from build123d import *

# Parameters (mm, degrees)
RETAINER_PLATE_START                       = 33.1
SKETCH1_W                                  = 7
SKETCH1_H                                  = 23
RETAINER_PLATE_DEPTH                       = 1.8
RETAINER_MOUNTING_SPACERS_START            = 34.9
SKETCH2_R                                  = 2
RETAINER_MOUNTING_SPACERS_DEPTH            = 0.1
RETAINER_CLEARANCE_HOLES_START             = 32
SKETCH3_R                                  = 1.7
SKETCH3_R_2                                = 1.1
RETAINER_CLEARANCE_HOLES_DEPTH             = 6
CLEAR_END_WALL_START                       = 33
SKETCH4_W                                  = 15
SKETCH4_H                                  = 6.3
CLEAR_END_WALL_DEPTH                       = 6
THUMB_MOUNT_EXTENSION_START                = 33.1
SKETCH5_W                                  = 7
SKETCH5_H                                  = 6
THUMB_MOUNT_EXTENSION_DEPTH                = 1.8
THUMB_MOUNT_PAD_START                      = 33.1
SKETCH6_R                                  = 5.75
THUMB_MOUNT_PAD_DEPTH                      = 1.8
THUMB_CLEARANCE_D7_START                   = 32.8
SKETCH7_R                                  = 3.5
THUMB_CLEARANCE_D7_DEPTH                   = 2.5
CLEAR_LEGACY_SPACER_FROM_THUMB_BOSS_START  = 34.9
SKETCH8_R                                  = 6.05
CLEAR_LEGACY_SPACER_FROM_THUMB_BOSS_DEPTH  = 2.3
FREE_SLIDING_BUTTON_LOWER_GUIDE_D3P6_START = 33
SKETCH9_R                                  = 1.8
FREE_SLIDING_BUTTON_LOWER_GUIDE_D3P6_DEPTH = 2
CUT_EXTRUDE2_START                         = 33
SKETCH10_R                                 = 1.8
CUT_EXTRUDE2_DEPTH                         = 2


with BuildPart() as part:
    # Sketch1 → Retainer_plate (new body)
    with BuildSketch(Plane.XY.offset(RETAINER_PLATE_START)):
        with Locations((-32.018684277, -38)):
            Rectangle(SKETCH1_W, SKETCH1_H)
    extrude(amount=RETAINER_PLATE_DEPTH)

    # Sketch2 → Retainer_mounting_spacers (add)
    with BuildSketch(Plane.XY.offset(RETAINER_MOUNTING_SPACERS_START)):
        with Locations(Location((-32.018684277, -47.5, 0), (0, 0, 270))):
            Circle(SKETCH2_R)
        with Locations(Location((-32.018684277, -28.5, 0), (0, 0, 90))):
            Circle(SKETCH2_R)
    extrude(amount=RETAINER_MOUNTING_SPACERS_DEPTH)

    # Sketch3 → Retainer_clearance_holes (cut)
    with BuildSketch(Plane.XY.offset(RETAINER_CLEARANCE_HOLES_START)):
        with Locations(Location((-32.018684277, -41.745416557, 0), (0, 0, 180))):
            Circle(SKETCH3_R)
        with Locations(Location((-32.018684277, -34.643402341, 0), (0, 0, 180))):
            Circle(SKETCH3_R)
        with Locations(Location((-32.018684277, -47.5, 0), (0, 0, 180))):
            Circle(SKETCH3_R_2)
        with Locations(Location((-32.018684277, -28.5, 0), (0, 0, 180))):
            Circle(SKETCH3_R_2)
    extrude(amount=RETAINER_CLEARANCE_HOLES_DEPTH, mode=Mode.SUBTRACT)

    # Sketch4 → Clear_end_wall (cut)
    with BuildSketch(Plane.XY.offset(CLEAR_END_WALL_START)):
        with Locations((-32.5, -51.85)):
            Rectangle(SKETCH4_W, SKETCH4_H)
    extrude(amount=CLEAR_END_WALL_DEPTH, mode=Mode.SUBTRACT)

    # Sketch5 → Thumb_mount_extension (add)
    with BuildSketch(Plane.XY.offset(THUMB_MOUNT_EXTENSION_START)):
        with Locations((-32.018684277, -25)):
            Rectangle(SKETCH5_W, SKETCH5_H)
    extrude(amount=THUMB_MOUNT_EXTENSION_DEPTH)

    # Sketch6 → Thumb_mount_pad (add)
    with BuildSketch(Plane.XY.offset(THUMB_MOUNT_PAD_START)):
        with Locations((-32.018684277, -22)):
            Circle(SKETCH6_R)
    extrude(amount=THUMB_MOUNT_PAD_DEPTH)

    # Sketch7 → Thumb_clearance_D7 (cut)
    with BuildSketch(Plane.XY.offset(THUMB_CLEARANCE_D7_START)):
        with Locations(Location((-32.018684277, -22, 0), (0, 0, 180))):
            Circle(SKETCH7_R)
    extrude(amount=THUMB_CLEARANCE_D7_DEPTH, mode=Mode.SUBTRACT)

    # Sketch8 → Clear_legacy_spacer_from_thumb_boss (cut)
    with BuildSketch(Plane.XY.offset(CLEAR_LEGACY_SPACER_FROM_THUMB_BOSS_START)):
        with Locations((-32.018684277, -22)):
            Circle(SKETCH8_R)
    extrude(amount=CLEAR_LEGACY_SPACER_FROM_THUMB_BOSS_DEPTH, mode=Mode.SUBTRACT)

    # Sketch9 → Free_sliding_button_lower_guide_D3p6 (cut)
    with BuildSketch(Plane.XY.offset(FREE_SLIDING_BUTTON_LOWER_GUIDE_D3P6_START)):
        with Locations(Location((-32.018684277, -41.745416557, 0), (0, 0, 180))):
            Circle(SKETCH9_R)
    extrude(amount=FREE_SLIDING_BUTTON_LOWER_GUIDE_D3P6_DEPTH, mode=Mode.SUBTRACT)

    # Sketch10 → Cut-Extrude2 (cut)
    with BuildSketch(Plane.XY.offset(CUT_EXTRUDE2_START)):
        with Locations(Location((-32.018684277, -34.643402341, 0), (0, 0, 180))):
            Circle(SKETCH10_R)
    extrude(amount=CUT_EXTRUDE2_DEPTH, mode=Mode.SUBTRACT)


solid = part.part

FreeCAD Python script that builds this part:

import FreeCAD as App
import Part
import Sketcher

V = App.Vector

doc = App.newDocument("Part")
body = doc.addObject("PartDesign::Body", "Body")

sketch1 = doc.addObject("Sketcher::SketchObject", "Sketch")
body.addObject(sketch1)
sketch1.AttachmentSupport = (doc.XY_Plane, [""])
sketch1.MapMode = "FlatFace"
sketch1.AttachmentOffset = App.Placement(V(0, 0, 33.1), App.Rotation())
sketch1.addGeometry(Part.LineSegment(V(-36, -26, 0), V(-36, -50, 0)), False)
sketch1.addGeometry(Part.LineSegment(V(-36, -50, 0), V(-29, -50, 0)), False)
sketch1.addGeometry(Part.LineSegment(V(-29, -50, 0), V(-29, -26, 0)), False)
sketch1.addGeometry(Part.LineSegment(V(-29, -26, 0), V(-36, -26, 0)), False)
sketch1.addConstraint(Sketcher.Constraint("Coincident", 0, 2, 1, 1))
sketch1.addConstraint(Sketcher.Constraint("Coincident", 1, 2, 2, 1))
sketch1.addConstraint(Sketcher.Constraint("Coincident", 2, 2, 3, 1))
sketch1.addConstraint(Sketcher.Constraint("Coincident", 3, 2, 0, 1))
sketch1.addConstraint(Sketcher.Constraint("Vertical", 0))
sketch1.addConstraint(Sketcher.Constraint("Horizontal", 1))
sketch1.addConstraint(Sketcher.Constraint("Vertical", 2))
sketch1.addConstraint(Sketcher.Constraint("Horizontal", 3))
sketch1.addConstraint(Sketcher.Constraint("DistanceX", 1, 1, 1, 2, 7.0))
sketch1.addConstraint(Sketcher.Constraint("DistanceY", 0, 2, 0, 1, 23.0))
sketch1.addConstraint(Sketcher.Constraint("DistanceY", 0, 2, -1, 1, 49.5))
sketch1.addConstraint(Sketcher.Constraint("DistanceX", 0, 2, -1, 1, 35.518684))
pad1 = doc.addObject("PartDesign::Pad", "Pad")
body.addObject(pad1)
pad1.Profile = sketch1
pad1.Length = 1.8

sketch2 = doc.addObject("Sketcher::SketchObject", "Sketch001")
body.addObject(sketch2)
sketch2.AttachmentSupport = (doc.XY_Plane, [""])
sketch2.MapMode = "FlatFace"
sketch2.AttachmentOffset = App.Placement(V(0, 0, 34.9), App.Rotation())
sketch2.addGeometry(Part.Circle(V(-32, -47.5, 0), V(0, 0, 1), 2), False)
sketch2.addGeometry(Part.Circle(V(-32, -28.5, 0), V(0, 0, 1), 2), False)
sketch2.addConstraint(Sketcher.Constraint("Equal", 0, 1))
sketch2.addConstraint(Sketcher.Constraint("Vertical", 0, 3, 1, 3))
sketch2.addConstraint(Sketcher.Constraint("Diameter", 0, 4.0))
sketch2.addConstraint(Sketcher.Constraint("DistanceY", 0, 3, 1, 3, 19.0))
sketch2.addConstraint(Sketcher.Constraint("DistanceY", 0, 3, -1, 1, 47.5))
sketch2.addConstraint(Sketcher.Constraint("DistanceX", 0, 3, -1, 1, 32.018684))
pad2 = doc.addObject("PartDesign::Pad", "Pad001")
body.addObject(pad2)
pad2.Profile = sketch2
pad2.Length = 0.1

sketch3 = doc.addObject("Sketcher::SketchObject", "Sketch002")
body.addObject(sketch3)
sketch3.AttachmentSupport = (doc.XY_Plane, [""])
sketch3.MapMode = "FlatFace"
sketch3.AttachmentOffset = App.Placement(V(0, 0, 32), App.Rotation())
sketch3.addGeometry(Part.Circle(V(-32, -41.7, 0), V(0, 0, 1), 1.7), False)
sketch3.addGeometry(Part.Circle(V(-32, -34.6, 0), V(0, 0, 1), 1.7), False)
sketch3.addGeometry(Part.Circle(V(-32, -47.5, 0), V(0, 0, 1), 1.1), False)
sketch3.addGeometry(Part.Circle(V(-32, -28.5, 0), V(0, 0, 1), 1.1), False)
sketch3.addConstraint(Sketcher.Constraint("Equal", 0, 1))
sketch3.addConstraint(Sketcher.Constraint("Equal", 2, 3))
sketch3.addConstraint(Sketcher.Constraint("Vertical", 0, 3, 1, 3))
sketch3.addConstraint(Sketcher.Constraint("Vertical", 1, 3, 2, 3))
sketch3.addConstraint(Sketcher.Constraint("Vertical", 2, 3, 3, 3))
sketch3.addConstraint(Sketcher.Constraint("Diameter", 0, 3.4))
sketch3.addConstraint(Sketcher.Constraint("Diameter", 2, 2.2))
sketch3.addConstraint(Sketcher.Constraint("DistanceY", 2, 3, 3, 3, 19.0))
sketch3.addConstraint(Sketcher.Constraint("DistanceY", 2, 3, -1, 1, 47.5))
sketch3.addConstraint(Sketcher.Constraint("DistanceX", 0, 3, -1, 1, 32.018684))
sketch3.addConstraint(Sketcher.Constraint("DistanceY", 0, 3, -1, 1, 41.745417))
sketch3.addConstraint(Sketcher.Constraint("DistanceY", 1, 3, -1, 1, 34.643402))
pocket1 = doc.addObject("PartDesign::Pocket", "Pocket")
body.addObject(pocket1)
pocket1.Profile = sketch3
pocket1.Length = 6
pocket1.Reversed = True

sketch4 = doc.addObject("Sketcher::SketchObject", "Sketch003")
body.addObject(sketch4)
sketch4.AttachmentSupport = (doc.XY_Plane, [""])
sketch4.MapMode = "FlatFace"
sketch4.AttachmentOffset = App.Placement(V(0, 0, 33), App.Rotation())
sketch4.addGeometry(Part.LineSegment(V(-40, -49, 0), V(-40, -55, 0)), False)
sketch4.addGeometry(Part.LineSegment(V(-40, -55, 0), V(-25, -55, 0)), False)
sketch4.addGeometry(Part.LineSegment(V(-25, -55, 0), V(-25, -49, 0)), False)
sketch4.addGeometry(Part.LineSegment(V(-25, -49, 0), V(-40, -49, 0)), False)
sketch4.addConstraint(Sketcher.Constraint("Coincident", 0, 2, 1, 1))
sketch4.addConstraint(Sketcher.Constraint("Coincident", 1, 2, 2, 1))
sketch4.addConstraint(Sketcher.Constraint("Coincident", 2, 2, 3, 1))
sketch4.addConstraint(Sketcher.Constraint("Coincident", 3, 2, 0, 1))
sketch4.addConstraint(Sketcher.Constraint("Vertical", 0))
sketch4.addConstraint(Sketcher.Constraint("Horizontal", 1))
sketch4.addConstraint(Sketcher.Constraint("Vertical", 2))
sketch4.addConstraint(Sketcher.Constraint("Horizontal", 3))
sketch4.addConstraint(Sketcher.Constraint("DistanceX", 1, 1, 1, 2, 15.0))
sketch4.addConstraint(Sketcher.Constraint("DistanceY", 0, 2, 0, 1, 6.3))
sketch4.addConstraint(Sketcher.Constraint("DistanceX", 0, 2, -1, 1, 40.0))
sketch4.addConstraint(Sketcher.Constraint("DistanceY", 0, 2, -1, 1, 55.0))
pocket2 = doc.addObject("PartDesign::Pocket", "Pocket001")
body.addObject(pocket2)
pocket2.Profile = sketch4
pocket2.Length = 6
pocket2.Reversed = True

sketch5 = doc.addObject("Sketcher::SketchObject", "Sketch004")
body.addObject(sketch5)
sketch5.AttachmentSupport = (doc.XY_Plane, [""])
sketch5.MapMode = "FlatFace"
sketch5.AttachmentOffset = App.Placement(V(0, 0, 33.1), App.Rotation())
sketch5.addGeometry(Part.LineSegment(V(-36, -22, 0), V(-36, -28, 0)), False)
sketch5.addGeometry(Part.LineSegment(V(-36, -28, 0), V(-29, -28, 0)), False)
sketch5.addGeometry(Part.LineSegment(V(-29, -28, 0), V(-29, -22, 0)), False)
sketch5.addGeometry(Part.LineSegment(V(-29, -22, 0), V(-36, -22, 0)), False)
sketch5.addConstraint(Sketcher.Constraint("Coincident", 0, 2, 1, 1))
sketch5.addConstraint(Sketcher.Constraint("Coincident", 1, 2, 2, 1))
sketch5.addConstraint(Sketcher.Constraint("Coincident", 2, 2, 3, 1))
sketch5.addConstraint(Sketcher.Constraint("Coincident", 3, 2, 0, 1))
sketch5.addConstraint(Sketcher.Constraint("Vertical", 0))
sketch5.addConstraint(Sketcher.Constraint("Horizontal", 1))
sketch5.addConstraint(Sketcher.Constraint("Vertical", 2))
sketch5.addConstraint(Sketcher.Constraint("Horizontal", 3))
sketch5.addConstraint(Sketcher.Constraint("DistanceX", 1, 1, 1, 2, 7.0))
sketch5.addConstraint(Sketcher.Constraint("DistanceY", 0, 2, 0, 1, 6.0))
sketch5.addConstraint(Sketcher.Constraint("DistanceY", 0, 2, -1, 1, 28.0))
sketch5.addConstraint(Sketcher.Constraint("DistanceX", 0, 2, -1, 1, 35.518684))
pad3 = doc.addObject("PartDesign::Pad", "Pad002")
body.addObject(pad3)
pad3.Profile = sketch5
pad3.Length = 1.8

sketch6 = doc.addObject("Sketcher::SketchObject", "Sketch005")
body.addObject(sketch6)
sketch6.AttachmentSupport = (doc.XY_Plane, [""])
sketch6.MapMode = "FlatFace"
sketch6.AttachmentOffset = App.Placement(V(0, 0, 33.1), App.Rotation())
sketch6.addGeometry(Part.Circle(V(-32, -22, 0), V(0, 0, 1), 6), False)
sketch6.addConstraint(Sketcher.Constraint("Diameter", 0, 11.5))
sketch6.addConstraint(Sketcher.Constraint("DistanceY", 0, 3, -1, 1, 22.0))
sketch6.addConstraint(Sketcher.Constraint("DistanceX", 0, 3, -1, 1, 32.018684))
pad4 = doc.addObject("PartDesign::Pad", "Pad003")
body.addObject(pad4)
pad4.Profile = sketch6
pad4.Length = 1.8

sketch7 = doc.addObject("Sketcher::SketchObject", "Sketch006")
body.addObject(sketch7)
sketch7.AttachmentSupport = (doc.XY_Plane, [""])
sketch7.MapMode = "FlatFace"
sketch7.AttachmentOffset = App.Placement(V(0, 0, 32.8), App.Rotation())
sketch7.addGeometry(Part.Circle(V(-32, -22, 0), V(0, 0, 1), 3.5), False)
sketch7.addConstraint(Sketcher.Constraint("Diameter", 0, 7.0))
sketch7.addConstraint(Sketcher.Constraint("DistanceY", 0, 3, -1, 1, 22.0))
sketch7.addConstraint(Sketcher.Constraint("DistanceX", 0, 3, -1, 1, 32.018684))
pocket3 = doc.addObject("PartDesign::Pocket", "Pocket002")
body.addObject(pocket3)
pocket3.Profile = sketch7
pocket3.Length = 2.5
pocket3.Reversed = True

sketch8 = doc.addObject("Sketcher::SketchObject", "Sketch007")
body.addObject(sketch8)
sketch8.AttachmentSupport = (doc.XY_Plane, [""])
sketch8.MapMode = "FlatFace"
sketch8.AttachmentOffset = App.Placement(V(0, 0, 34.9), App.Rotation())
sketch8.addGeometry(Part.Circle(V(-32, -22, 0), V(0, 0, 1), 6), False)
sketch8.addConstraint(Sketcher.Constraint("Diameter", 0, 12.1))
sketch8.addConstraint(Sketcher.Constraint("DistanceY", 0, 3, -1, 1, 22.0))
sketch8.addConstraint(Sketcher.Constraint("DistanceX", 0, 3, -1, 1, 32.018684))
pocket4 = doc.addObject("PartDesign::Pocket", "Pocket003")
body.addObject(pocket4)
pocket4.Profile = sketch8
pocket4.Length = 2.3
pocket4.Reversed = True

sketch9 = doc.addObject("Sketcher::SketchObject", "Sketch008")
body.addObject(sketch9)
sketch9.AttachmentSupport = (doc.XY_Plane, [""])
sketch9.MapMode = "FlatFace"
sketch9.AttachmentOffset = App.Placement(V(0, 0, 33), App.Rotation())
sketch9.addGeometry(Part.Circle(V(-32, -41.7, 0), V(0, 0, 1), 1.8), False)
sketch9.addConstraint(Sketcher.Constraint("Diameter", 0, 3.6))
sketch9.addConstraint(Sketcher.Constraint("DistanceX", 0, 3, -1, 1, 32.018684))
sketch9.addConstraint(Sketcher.Constraint("DistanceY", 0, 3, -1, 1, 41.745417))
pocket5 = doc.addObject("PartDesign::Pocket", "Pocket004")
body.addObject(pocket5)
pocket5.Profile = sketch9
pocket5.Length = 2
pocket5.Reversed = True

sketch10 = doc.addObject("Sketcher::SketchObject", "Sketch009")
body.addObject(sketch10)
sketch10.AttachmentSupport = (doc.XY_Plane, [""])
sketch10.MapMode = "FlatFace"
sketch10.AttachmentOffset = App.Placement(V(0, 0, 33), App.Rotation())
sketch10.addGeometry(Part.Circle(V(-32, -34.6, 0), V(0, 0, 1), 1.8), False)
sketch10.addConstraint(Sketcher.Constraint("Diameter", 0, 3.6))
sketch10.addConstraint(Sketcher.Constraint("DistanceX", 0, 3, -1, 1, 32.018684))
sketch10.addConstraint(Sketcher.Constraint("DistanceY", 0, 3, -1, 1, 34.643402))
pocket6 = doc.addObject("PartDesign::Pocket", "Pocket005")
body.addObject(pocket6)
pocket6.Profile = sketch10
pocket6.Length = 2
pocket6.Reversed = True

doc.recompute()
